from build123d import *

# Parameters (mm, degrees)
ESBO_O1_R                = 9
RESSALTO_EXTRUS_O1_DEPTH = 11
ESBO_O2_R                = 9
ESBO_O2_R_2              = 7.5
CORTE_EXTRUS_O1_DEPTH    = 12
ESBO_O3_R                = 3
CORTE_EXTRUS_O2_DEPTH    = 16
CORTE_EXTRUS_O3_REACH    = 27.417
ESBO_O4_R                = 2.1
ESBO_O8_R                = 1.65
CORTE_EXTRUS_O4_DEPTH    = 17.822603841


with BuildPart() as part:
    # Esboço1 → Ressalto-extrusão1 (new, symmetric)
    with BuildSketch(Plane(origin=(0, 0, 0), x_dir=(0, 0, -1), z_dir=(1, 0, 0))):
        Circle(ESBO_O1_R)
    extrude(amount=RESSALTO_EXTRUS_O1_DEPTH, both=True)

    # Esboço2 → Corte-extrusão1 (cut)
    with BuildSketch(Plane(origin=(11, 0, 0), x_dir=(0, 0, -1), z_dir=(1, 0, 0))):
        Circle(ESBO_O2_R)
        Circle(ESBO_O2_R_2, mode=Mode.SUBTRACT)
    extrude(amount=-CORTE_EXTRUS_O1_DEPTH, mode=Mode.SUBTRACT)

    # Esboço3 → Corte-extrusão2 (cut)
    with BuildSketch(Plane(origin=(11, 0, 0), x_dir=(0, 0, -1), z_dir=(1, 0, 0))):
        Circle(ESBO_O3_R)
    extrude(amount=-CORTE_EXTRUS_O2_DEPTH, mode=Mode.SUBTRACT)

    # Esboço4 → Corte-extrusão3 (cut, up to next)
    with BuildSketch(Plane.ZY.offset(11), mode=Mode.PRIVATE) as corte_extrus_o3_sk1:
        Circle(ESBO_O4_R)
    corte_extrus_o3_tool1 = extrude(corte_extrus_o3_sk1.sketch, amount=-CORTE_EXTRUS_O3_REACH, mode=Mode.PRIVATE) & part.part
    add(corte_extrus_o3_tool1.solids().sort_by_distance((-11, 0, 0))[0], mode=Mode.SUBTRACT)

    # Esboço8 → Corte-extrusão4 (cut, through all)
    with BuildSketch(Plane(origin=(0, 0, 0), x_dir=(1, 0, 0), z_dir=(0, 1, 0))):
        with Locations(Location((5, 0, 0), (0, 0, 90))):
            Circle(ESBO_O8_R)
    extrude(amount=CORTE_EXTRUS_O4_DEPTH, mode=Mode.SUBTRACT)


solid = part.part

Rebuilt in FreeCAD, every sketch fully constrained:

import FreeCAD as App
import Part
import Sketcher

doc = App.newDocument("Part")
body = doc.addObject("PartDesign::Body", "Body")

# Sketch on YZ plane
sketch1 = body.newObject("Sketcher::SketchObject", "Sketch")
sketch1.AttachmentSupport = (doc.getObject("YZ_Plane"), [""])
sketch1.MapMode = "FlatFace"
sketch1.addGeometry(Part.Circle(App.Vector(0, 0, 0), App.Vector(0, 0, 1), 9), False)
sketch1.addConstraint(Sketcher.Constraint("Coincident", 0, 3, -1, 1))
sketch1.addConstraint(Sketcher.Constraint("Diameter", 0, 18.0))
pad1 = body.newObject("PartDesign::Pad", "Pad")
pad1.Profile = sketch1
pad1.Length = 22
pad1.Midplane = True

# Sketch on YZ plane
sketch2 = body.newObject("Sketcher::SketchObject", "Sketch001")
sketch2.AttachmentSupport = (doc.getObject("YZ_Plane"), [""])
sketch2.MapMode = "FlatFace"
sketch2.AttachmentOffset = App.Placement(App.Vector(0, 0, 11), App.Rotation())
sketch2.addGeometry(Part.Circle(App.Vector(0, 0, 0), App.Vector(0, 0, 1), 9), False)
sketch2.addGeometry(Part.Circle(App.Vector(0, 0, 0), App.Vector(0, 0, 1), 8), False)
sketch2.addConstraint(Sketcher.Constraint("Coincident", 0, 3, -1, 1))
sketch2.addConstraint(Sketcher.Constraint("Coincident", 1, 3, -1, 1))
sketch2.addConstraint(Sketcher.Constraint("Diameter", 0, 18.0))
sketch2.addConstraint(Sketcher.Constraint("Diameter", 1, 15.0))
pocket1 = body.newObject("PartDesign::Pocket", "Pocket")
pocket1.Profile = sketch2
pocket1.Length = 12

# Sketch on YZ plane
sketch3 = body.newObject("Sketcher::SketchObject", "Sketch002")
sketch3.AttachmentSupport = (doc.getObject("YZ_Plane"), [""])
sketch3.MapMode = "FlatFace"
sketch3.AttachmentOffset = App.Placement(App.Vector(0, 0, 11), App.Rotation())
sketch3.addGeometry(Part.Circle(App.Vector(0, 0, 0), App.Vector(0, 0, 1), 3), False)
sketch3.addConstraint(Sketcher.Constraint("Coincident", 0, 3, -1, 1))
sketch3.addConstraint(Sketcher.Constraint("Diameter", 0, 6.0))
pocket2 = body.newObject("PartDesign::Pocket", "Pocket001")
pocket2.Profile = sketch3
pocket2.Length = 16

# Sketch on YZ plane
sketch4 = body.newObject("Sketcher::SketchObject", "Sketch003")
sketch4.AttachmentSupport = (doc.getObject("YZ_Plane"), [""])
sketch4.MapMode = "FlatFace"
sketch4.AttachmentOffset = App.Placement(App.Vector(0, 0, -11), App.Rotation())
sketch4.addGeometry(Part.Circle(App.Vector(0, 0, 0), App.Vector(0, 0, 1), 2.1), False)
sketch4.addConstraint(Sketcher.Constraint("Coincident", 0, 3, -1, 1))
sketch4.addConstraint(Sketcher.Constraint("Diameter", 0, 4.2))
pocket3 = body.newObject("PartDesign::Pocket", "Pocket002")
pocket3.Profile = sketch4
pocket3.Type = "UpToFirst"
pocket3.Reversed = True

# Sketch on XZ plane
sketch5 = body.newObject("Sketcher::SketchObject", "Sketch004")
sketch5.AttachmentSupport = (doc.getObject("XZ_Plane"), [""])
sketch5.MapMode = "FlatFace"
sketch5.addGeometry(Part.Circle(App.Vector(5, 0, 0), App.Vector(0, 0, 1), 1.6), False)
sketch5.addConstraint(Sketcher.Constraint("PointOnObject", 0, 3, -1))
sketch5.addConstraint(Sketcher.Constraint("Diameter", 0, 3.3))
sketch5.addConstraint(Sketcher.Constraint("DistanceX", -1, 1, 0, 3, 5.0))
pocket4 = body.newObject("PartDesign::Pocket", "Pocket003")
pocket4.Profile = sketch5
pocket4.Type = "ThroughAll"

doc.recompute()
